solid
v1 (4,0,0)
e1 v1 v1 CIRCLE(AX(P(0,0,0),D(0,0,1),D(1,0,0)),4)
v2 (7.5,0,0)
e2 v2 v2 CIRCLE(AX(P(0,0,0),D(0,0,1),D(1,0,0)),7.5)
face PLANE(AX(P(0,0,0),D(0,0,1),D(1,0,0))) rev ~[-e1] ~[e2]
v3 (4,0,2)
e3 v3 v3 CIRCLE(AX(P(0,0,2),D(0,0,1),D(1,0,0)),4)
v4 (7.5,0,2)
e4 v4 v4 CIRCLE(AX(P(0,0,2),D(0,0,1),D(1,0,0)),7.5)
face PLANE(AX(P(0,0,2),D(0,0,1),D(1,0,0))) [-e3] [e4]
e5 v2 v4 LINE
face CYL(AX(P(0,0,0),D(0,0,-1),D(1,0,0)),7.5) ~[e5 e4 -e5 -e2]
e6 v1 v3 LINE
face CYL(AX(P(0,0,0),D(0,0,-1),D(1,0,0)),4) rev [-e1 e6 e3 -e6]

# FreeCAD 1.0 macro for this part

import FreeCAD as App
import Part
import Sketcher
from FreeCAD import Vector
Q = App.Units.Quantity

doc = App.newDocument("Part")
body = doc.addObject("PartDesign::Body", "Body")

sketch1 = body.newObject("Sketcher::SketchObject", "Sketch")
sketch1.AttachmentSupport = (doc.getObject("XY_Plane"), [""])
sketch1.MapMode = "FlatFace"
sketch1.addGeometry([
    Part.Circle(Vector(0, 0, 0), Vector(0, 0, 1), 7.5),
    Part.Circle(Vector(0, 0, 0), Vector(0, 0, 1), 4),
], False)
sketch1.addConstraint([
    Sketcher.Constraint("Coincident", 0, 3, -1, 1),
    Sketcher.Constraint("Coincident", 1, 3, -1, 1),
    Sketcher.Constraint("Diameter", 0, Q("15 mm")),
    Sketcher.Constraint("Diameter", 1, Q("8 mm")),
])
pad1 = body.newObject("PartDesign::Pad", "Pad")
pad1.Profile = sketch1
pad1.Length = 2

doc.recompute()
